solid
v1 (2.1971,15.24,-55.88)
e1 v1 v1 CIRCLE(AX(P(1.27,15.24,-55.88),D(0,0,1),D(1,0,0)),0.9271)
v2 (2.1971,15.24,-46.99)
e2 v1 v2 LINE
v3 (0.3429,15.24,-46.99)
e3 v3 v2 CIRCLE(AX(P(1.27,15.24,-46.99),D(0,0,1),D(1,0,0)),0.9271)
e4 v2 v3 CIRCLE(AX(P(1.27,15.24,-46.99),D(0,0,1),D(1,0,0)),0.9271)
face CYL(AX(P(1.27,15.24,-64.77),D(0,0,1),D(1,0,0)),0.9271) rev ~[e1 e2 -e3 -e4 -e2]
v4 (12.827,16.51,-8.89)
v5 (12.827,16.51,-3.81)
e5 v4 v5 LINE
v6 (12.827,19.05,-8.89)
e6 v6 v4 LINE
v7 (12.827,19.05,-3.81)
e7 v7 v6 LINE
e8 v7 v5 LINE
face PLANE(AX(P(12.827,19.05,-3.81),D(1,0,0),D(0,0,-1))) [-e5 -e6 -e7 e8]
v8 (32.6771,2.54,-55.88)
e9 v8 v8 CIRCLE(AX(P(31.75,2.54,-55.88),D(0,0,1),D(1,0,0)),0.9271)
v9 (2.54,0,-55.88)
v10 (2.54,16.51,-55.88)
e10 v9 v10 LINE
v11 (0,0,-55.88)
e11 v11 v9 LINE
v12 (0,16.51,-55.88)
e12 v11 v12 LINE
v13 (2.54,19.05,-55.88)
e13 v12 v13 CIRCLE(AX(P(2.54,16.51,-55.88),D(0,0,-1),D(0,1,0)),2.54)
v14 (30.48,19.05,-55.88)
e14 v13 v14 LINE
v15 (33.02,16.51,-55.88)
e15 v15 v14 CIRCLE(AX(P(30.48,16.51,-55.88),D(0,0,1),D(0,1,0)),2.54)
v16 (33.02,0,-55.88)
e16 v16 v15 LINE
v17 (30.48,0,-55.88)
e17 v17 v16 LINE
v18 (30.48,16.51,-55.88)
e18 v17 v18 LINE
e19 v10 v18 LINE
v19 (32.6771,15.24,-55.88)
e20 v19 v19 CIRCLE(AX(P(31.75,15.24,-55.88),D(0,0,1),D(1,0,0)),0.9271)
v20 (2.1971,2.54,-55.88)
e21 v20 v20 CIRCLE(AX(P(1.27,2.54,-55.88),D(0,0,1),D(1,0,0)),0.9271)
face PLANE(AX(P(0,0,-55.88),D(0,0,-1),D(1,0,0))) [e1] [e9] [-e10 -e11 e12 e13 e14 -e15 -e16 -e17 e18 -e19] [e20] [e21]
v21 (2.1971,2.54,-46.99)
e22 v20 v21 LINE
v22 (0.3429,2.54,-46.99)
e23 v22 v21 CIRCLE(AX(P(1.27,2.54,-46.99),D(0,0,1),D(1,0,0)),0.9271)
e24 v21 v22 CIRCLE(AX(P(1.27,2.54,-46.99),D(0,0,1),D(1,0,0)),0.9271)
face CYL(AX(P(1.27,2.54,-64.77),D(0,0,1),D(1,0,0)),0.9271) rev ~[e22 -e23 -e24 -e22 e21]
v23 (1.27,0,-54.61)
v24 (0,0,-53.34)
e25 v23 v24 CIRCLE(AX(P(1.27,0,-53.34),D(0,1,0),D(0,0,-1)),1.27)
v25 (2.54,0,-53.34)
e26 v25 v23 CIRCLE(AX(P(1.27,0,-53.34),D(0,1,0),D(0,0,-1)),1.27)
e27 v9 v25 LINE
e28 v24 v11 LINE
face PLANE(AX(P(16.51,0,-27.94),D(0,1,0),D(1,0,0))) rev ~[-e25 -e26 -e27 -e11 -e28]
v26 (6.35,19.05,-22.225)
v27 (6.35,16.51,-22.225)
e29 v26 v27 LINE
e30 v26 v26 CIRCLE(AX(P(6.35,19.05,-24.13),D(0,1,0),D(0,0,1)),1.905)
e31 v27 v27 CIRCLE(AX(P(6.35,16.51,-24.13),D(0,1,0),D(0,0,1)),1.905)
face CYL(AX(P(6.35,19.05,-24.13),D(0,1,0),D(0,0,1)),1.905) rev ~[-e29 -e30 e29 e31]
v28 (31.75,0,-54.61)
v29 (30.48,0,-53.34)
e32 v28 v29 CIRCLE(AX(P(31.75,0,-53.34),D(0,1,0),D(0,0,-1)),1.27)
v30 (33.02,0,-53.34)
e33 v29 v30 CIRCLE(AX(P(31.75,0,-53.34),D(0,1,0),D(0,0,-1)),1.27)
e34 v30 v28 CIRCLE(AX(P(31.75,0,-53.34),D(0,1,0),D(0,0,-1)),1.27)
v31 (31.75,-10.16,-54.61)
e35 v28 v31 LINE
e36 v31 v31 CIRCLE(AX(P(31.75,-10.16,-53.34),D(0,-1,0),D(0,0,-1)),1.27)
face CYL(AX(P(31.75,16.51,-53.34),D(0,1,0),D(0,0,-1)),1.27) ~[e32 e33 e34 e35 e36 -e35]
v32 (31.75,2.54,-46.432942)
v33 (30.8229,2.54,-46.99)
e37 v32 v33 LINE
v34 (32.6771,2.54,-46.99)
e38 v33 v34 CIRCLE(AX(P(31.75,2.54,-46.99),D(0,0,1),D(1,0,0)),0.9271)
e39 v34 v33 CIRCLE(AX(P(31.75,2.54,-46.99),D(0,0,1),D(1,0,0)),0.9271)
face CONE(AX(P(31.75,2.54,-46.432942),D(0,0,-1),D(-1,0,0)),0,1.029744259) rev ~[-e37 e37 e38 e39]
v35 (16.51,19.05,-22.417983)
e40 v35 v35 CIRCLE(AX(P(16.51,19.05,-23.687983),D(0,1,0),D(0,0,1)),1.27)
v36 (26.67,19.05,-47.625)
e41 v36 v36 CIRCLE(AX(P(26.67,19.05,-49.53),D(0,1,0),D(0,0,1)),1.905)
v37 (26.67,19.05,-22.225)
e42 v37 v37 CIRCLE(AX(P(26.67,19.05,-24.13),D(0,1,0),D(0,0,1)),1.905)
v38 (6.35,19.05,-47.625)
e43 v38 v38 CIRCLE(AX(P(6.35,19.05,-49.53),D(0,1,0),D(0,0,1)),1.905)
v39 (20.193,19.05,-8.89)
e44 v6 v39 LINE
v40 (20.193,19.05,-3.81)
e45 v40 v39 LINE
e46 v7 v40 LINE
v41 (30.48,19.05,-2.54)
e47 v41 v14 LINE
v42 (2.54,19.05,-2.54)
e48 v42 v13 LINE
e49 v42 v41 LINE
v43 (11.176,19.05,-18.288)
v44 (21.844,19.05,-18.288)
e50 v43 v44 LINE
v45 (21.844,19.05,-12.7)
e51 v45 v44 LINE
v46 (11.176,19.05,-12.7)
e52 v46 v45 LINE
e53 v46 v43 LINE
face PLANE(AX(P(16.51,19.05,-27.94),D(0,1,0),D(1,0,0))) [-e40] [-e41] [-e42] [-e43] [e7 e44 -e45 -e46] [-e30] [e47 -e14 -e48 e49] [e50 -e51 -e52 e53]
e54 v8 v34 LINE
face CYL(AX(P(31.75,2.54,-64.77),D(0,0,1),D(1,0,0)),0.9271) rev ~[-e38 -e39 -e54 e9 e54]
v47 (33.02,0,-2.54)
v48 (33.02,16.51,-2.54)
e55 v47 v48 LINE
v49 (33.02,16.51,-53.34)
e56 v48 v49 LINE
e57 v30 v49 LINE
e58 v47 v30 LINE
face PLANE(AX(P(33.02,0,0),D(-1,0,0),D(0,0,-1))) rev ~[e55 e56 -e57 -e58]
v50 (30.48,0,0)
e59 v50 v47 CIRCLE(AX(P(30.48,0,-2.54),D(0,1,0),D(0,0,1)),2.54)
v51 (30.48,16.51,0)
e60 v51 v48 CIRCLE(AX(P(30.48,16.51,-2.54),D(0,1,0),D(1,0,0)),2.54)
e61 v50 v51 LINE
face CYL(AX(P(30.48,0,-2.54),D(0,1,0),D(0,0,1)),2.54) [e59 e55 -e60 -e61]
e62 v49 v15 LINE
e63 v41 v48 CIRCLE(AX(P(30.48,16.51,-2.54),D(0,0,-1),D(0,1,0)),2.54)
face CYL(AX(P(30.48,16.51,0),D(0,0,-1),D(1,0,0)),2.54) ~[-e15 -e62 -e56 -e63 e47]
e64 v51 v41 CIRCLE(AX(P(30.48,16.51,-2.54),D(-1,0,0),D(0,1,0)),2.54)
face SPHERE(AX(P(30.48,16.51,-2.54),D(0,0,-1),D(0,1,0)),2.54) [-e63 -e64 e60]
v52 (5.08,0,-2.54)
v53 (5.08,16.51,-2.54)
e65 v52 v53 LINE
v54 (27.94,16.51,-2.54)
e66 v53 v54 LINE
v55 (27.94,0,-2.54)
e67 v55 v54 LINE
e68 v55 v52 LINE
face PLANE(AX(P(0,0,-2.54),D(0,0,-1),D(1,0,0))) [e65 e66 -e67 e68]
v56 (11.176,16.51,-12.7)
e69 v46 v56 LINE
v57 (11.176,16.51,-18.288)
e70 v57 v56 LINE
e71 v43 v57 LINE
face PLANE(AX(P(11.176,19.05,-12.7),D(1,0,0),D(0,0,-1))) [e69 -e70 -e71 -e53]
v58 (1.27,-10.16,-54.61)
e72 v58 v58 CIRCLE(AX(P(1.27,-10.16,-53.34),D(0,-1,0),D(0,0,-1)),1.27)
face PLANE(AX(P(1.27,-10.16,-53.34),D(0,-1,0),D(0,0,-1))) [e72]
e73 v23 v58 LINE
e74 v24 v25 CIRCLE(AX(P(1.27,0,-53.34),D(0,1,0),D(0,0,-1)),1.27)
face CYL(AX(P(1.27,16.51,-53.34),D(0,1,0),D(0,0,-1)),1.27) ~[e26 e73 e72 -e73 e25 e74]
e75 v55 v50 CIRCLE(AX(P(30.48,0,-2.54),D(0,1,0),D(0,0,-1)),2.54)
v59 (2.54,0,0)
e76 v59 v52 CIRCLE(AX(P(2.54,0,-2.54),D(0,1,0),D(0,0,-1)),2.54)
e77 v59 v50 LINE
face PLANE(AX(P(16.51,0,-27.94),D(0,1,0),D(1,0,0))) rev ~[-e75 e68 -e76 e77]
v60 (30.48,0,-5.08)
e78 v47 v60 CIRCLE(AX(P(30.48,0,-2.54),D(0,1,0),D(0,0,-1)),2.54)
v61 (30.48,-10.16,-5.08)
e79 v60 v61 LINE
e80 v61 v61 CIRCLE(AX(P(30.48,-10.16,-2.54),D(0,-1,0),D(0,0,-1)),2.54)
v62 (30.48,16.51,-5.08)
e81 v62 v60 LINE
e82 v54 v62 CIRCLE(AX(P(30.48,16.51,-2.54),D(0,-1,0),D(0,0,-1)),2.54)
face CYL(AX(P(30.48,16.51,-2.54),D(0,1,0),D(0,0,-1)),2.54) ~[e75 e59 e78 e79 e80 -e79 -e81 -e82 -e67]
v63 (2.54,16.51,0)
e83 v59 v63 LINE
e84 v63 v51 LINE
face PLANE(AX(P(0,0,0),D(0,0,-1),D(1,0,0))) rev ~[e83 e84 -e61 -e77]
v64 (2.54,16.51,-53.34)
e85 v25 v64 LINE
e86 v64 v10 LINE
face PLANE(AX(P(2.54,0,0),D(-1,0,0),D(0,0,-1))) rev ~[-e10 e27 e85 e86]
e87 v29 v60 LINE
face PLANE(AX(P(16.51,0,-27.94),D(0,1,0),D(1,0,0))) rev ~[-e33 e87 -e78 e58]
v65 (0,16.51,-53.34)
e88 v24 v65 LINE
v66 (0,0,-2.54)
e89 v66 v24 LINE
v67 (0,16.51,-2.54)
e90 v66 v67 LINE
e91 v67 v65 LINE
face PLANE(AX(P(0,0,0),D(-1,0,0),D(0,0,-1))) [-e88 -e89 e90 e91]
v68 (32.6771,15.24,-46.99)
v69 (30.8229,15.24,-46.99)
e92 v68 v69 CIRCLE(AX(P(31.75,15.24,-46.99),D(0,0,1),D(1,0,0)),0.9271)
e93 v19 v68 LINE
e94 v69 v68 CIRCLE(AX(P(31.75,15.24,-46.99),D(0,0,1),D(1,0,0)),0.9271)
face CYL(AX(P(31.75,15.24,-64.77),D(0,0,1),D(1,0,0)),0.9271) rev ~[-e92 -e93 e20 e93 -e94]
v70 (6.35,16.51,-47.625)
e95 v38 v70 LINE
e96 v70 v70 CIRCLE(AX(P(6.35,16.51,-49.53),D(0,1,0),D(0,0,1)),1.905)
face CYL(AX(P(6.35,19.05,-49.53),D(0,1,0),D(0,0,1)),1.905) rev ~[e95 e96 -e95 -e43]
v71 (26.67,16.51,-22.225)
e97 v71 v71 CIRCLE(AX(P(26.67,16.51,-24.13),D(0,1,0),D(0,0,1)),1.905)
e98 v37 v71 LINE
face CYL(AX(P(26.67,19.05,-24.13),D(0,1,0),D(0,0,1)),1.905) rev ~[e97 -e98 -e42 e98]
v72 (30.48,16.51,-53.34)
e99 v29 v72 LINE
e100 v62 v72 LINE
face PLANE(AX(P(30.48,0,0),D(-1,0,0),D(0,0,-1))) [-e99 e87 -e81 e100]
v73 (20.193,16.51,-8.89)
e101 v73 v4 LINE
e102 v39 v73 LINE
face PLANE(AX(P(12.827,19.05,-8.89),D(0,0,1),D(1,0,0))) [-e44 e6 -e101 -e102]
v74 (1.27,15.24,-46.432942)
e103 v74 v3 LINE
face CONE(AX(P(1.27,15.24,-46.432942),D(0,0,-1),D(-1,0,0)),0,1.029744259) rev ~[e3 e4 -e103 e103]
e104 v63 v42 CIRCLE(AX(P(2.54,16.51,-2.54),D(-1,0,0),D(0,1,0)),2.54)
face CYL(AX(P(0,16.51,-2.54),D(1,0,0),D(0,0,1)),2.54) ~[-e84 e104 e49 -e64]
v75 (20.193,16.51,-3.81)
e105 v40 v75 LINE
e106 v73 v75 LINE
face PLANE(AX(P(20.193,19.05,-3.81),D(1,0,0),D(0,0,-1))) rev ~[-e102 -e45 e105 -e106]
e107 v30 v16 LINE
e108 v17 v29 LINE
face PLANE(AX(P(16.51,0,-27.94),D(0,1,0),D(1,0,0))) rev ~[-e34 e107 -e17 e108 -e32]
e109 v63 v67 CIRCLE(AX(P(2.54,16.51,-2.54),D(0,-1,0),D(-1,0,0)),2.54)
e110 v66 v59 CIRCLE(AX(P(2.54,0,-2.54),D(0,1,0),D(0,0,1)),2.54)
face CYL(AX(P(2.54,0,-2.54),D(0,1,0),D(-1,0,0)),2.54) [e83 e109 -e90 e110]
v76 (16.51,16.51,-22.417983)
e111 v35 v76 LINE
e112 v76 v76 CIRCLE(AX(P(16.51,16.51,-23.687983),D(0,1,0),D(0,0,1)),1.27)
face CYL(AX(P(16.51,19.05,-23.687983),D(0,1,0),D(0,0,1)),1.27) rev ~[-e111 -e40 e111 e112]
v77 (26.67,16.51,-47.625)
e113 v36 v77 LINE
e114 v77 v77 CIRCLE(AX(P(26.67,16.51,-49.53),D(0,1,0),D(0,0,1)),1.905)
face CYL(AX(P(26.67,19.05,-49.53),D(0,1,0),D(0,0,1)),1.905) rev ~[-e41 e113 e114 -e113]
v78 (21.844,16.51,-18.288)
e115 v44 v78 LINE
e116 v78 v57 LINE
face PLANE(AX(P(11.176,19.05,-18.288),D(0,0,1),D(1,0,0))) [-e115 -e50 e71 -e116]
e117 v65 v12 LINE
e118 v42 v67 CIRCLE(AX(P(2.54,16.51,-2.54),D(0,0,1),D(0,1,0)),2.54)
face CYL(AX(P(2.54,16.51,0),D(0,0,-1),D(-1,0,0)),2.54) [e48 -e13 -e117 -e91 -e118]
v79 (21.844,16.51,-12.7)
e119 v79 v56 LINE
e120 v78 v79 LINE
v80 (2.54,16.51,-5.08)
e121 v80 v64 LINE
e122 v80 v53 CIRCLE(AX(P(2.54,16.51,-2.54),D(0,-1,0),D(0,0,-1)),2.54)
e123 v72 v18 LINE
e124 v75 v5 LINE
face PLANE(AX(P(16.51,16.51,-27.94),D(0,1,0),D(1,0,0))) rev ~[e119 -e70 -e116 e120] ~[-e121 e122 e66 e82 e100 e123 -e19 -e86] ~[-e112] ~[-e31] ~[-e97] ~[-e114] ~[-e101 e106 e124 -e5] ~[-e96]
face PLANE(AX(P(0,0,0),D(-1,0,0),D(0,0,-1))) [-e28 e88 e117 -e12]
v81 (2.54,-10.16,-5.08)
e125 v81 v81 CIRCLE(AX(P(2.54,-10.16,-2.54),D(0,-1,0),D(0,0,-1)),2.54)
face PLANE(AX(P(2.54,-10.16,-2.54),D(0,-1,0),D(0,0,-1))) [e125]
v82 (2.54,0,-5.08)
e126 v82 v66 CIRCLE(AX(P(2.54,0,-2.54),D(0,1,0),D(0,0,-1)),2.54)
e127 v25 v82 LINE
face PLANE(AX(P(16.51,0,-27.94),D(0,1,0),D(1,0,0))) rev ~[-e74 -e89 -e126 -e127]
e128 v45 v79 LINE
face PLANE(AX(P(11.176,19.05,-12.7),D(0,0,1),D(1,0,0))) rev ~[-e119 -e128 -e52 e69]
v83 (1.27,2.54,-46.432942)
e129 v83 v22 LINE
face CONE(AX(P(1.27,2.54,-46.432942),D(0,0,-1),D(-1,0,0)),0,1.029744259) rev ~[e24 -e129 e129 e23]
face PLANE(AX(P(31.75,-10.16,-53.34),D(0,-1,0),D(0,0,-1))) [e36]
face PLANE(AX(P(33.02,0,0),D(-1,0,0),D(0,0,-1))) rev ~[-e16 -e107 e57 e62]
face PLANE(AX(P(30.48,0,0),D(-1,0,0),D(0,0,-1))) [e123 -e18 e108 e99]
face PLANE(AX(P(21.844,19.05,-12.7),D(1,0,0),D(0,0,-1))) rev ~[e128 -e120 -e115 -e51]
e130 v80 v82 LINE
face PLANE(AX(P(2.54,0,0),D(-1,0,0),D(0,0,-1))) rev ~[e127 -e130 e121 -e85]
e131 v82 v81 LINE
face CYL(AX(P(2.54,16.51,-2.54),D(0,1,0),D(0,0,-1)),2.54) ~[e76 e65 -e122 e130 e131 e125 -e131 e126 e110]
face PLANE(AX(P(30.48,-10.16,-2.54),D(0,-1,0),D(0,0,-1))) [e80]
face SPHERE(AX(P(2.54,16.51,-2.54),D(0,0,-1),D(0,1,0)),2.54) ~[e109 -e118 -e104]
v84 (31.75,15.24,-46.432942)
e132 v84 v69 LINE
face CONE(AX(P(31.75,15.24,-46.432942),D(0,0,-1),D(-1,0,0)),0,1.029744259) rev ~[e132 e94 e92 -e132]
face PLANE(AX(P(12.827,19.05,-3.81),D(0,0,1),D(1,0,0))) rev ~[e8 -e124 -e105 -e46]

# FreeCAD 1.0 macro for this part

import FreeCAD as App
import Part
import Sketcher
Q = App.Units.Quantity


def edges_at(feature, points):
    """Names of the edges that pass closest to the given points."""
    edges = feature.Shape.Edges
    near = lambda p: min(range(len(edges)), key=lambda i: edges[i].distToShape(Part.Vertex(*p))[0])
    return sorted({f"Edge{near(p) + 1}" for p in points})


def faces_at(feature, points):
    """Names of the faces that lie closest to the given points."""
    faces = feature.Shape.Faces
    near = lambda p: min(range(len(faces)), key=lambda i: faces[i].distToShape(Part.Vertex(*p))[0])
    return sorted({f"Face{near(p) + 1}" for p in points})

doc = App.newDocument("Part")
body = doc.addObject("PartDesign::Body", "Body")

# Sketch on XZ plane
sketch1 = body.newObject("Sketcher::SketchObject", "Sketch")
sketch1.AttachmentSupport = (doc.getObject("XZ_Plane"), [""])
sketch1.MapMode = "FlatFace"
sketch1.addGeometry([
    Part.LineSegment(App.Vector(0, -55.88, 0), App.Vector(0, 0, 0)),
    Part.LineSegment(App.Vector(0, 0, 0), App.Vector(33.02, 0, 0)),
    Part.LineSegment(App.Vector(33.02, 0, 0), App.Vector(33.02, -55.88, 0)),
    Part.LineSegment(App.Vector(33.02, -55.88, 0), App.Vector(0, -55.88, 0)),
], False)
sketch1.addConstraint([
    Sketcher.Constraint("Coincident", 0, 2, 1, 1),
    Sketcher.Constraint("Coincident", 1, 2, 2, 1),
    Sketcher.Constraint("Coincident", 2, 2, 3, 1),
    Sketcher.Constraint("Coincident", 3, 2, 0, 1),
    Sketcher.Constraint("Vertical", 0),
    Sketcher.Constraint("Horizontal", 1),
    Sketcher.Constraint("Vertical", 2),
    Sketcher.Constraint("Horizontal", 3),
    Sketcher.Constraint("Coincident", 0, 2, -1, 1),
    Sketcher.Constraint("DistanceX", 1, 1, 1, 2, Q("1.3 in")),
    Sketcher.Constraint("DistanceY", 0, 1, 0, 2, Q("2.2 in")),
])
pad1 = body.newObject("PartDesign::Pad", "Pad")
pad1.Profile = sketch1
pad1.Length = Q("0.75 in")
pad1.Reversed = True
doc.recompute()

thickness = body.newObject("PartDesign::Thickness", "Thickness")
thickness.Base = (pad1, faces_at(pad1, [(16.51, 0, -27.94), (16.51, 9.525, -55.88)]))
thickness.Value = Q("0.1 in")
thickness.Reversed = True
thickness.Join = "Intersection"
doc.recompute()

fillet = body.newObject("PartDesign::Fillet", "Fillet")
fillet.Base = (thickness, edges_at(thickness, [
    (33.02, 19.05, -27.94),
    (0, 19.05, -27.94),
    (16.51, 19.05, 0),
    (33.02, 9.525, 0),
    (0, 9.525, 0),
]))
fillet.Radius = Q("0.1 in")

# Sketch on XZ plane
sketch2 = body.newObject("Sketcher::SketchObject", "Sketch001")
sketch2.AttachmentSupport = (doc.getObject("XZ_Plane"), [""])
sketch2.MapMode = "FlatFace"
sketch2.AttachmentOffset = App.Placement(App.Vector(0, 0, -0.75 * 25.4), App.Rotation())
sketch2.addGeometry([
    Part.Circle(App.Vector(26.67, -49.53, 0), App.Vector(0, 0, 1), 1.905),
    Part.Circle(App.Vector(26.67, -24.13, 0), App.Vector(0, 0, 1), 1.905),
    Part.Circle(App.Vector(6.35, -24.13, 0), App.Vector(0, 0, 1), 1.905),
    Part.Circle(App.Vector(6.35, -49.53, 0), App.Vector(0, 0, 1), 1.905),
], False)
sketch2.addConstraint([
    Sketcher.Constraint("Equal", 0, 1),
    Sketcher.Constraint("Equal", 1, 2),
    Sketcher.Constraint("Equal", 2, 3),
    Sketcher.Constraint("Horizontal", 1, 3, 2, 3),
    Sketcher.Constraint("Horizontal", 0, 3, 3, 3),
    Sketcher.Constraint("Vertical", 0, 3, 1, 3),
    Sketcher.Constraint("Vertical", 2, 3, 3, 3),
    Sketcher.Constraint("Diameter", 0, Q("0.15 in")),
    Sketcher.Constraint("DistanceY", 0, 3, 1, 3, Q("1 in")),
    Sketcher.Constraint("DistanceX", 2, 3, 1, 3, Q("0.8 in")),
    Sketcher.Constraint("DistanceX", -1, 1, 0, 3, Q("1.05 in")),
    Sketcher.Constraint("DistanceY", 0, 3, -1, 1, Q("1.95 in")),
])
pocket1 = body.newObject("PartDesign::Pocket", "Pocket")
pocket1.Profile = sketch2
pocket1.Length = Q("0.1 in")
pocket1.Reversed = True

# Sketch on XZ plane
sketch3 = body.newObject("Sketcher::SketchObject", "Sketch002")
sketch3.AttachmentSupport = (doc.getObject("XZ_Plane"), [""])
sketch3.MapMode = "FlatFace"
sketch3.AttachmentOffset = App.Placement(App.Vector(0, 0, -0.75 * 25.4), App.Rotation())
sketch3.addGeometry([
    Part.LineSegment(App.Vector(11.176, -18.288, 0), App.Vector(11.176, -12.7, 0)),
    Part.LineSegment(App.Vector(11.176, -12.7, 0), App.Vector(21.844, -12.7, 0)),
    Part.LineSegment(App.Vector(21.844, -12.7, 0), App.Vector(21.844, -18.288, 0)),
    Part.LineSegment(App.Vector(21.844, -18.288, 0), App.Vector(11.176, -18.288, 0)),
], False)
sketch3.addConstraint([
    Sketcher.Constraint("Coincident", 0, 2, 1, 1),
    Sketcher.Constraint("Coincident", 1, 2, 2, 1),
    Sketcher.Constraint("Coincident", 2, 2, 3, 1),
    Sketcher.Constraint("Coincident", 3, 2, 0, 1),
    Sketcher.Constraint("Vertical", 0),
    Sketcher.Constraint("Horizontal", 1),
    Sketcher.Constraint("Vertical", 2),
    Sketcher.Constraint("Horizontal", 3),
    Sketcher.Constraint("DistanceX", 1, 1, 1, 2, Q("0.42 in")),
    Sketcher.Constraint("DistanceY", 0, 1, 0, 2, Q("0.22 in")),
    Sketcher.Constraint("DistanceY", 0, 2, -1, 1, Q("0.5 in")),
    Sketcher.Constraint("DistanceX", -1, 1, 0, 2, Q("0.44 in")),
])
pocket2 = body.newObject("PartDesign::Pocket", "Pocket001")
pocket2.Profile = sketch3
pocket2.Type = "UpToFirst"
pocket2.Reversed = True

# Sketch on XZ plane
sketch4 = body.newObject("Sketcher::SketchObject", "Sketch003")
sketch4.AttachmentSupport = (doc.getObject("XZ_Plane"), [""])
sketch4.MapMode = "FlatFace"
sketch4.AttachmentOffset = App.Placement(App.Vector(0, 0, -0.75 * 25.4), App.Rotation())
sketch4.addGeometry(Part.Circle(App.Vector(16.51, -23.687983, 0), App.Vector(0, 0, 1), 1.27), False)
sketch4.addConstraint([
    Sketcher.Constraint("Diameter", 0, Q("0.1 in")),
    Sketcher.Constraint("DistanceX", -1, 1, 0, 3, Q("0.65 in")),
    Sketcher.Constraint("DistanceY", 0, 3, -1, 1, 23.687983),
])
pocket3 = body.newObject("PartDesign::Pocket", "Pocket002")
pocket3.Profile = sketch4
pocket3.Type = "UpToFirst"
pocket3.Reversed = True

# Sketch on XZ plane
sketch5 = body.newObject("Sketcher::SketchObject", "Sketch004")
sketch5.AttachmentSupport = (doc.getObject("XZ_Plane"), [""])
sketch5.MapMode = "FlatFace"
sketch5.AttachmentOffset = App.Placement(App.Vector(0, 0, -0.75 * 25.4), App.Rotation())
sketch5.addGeometry([
    Part.LineSegment(App.Vector(12.827, -8.89, 0), App.Vector(12.827, -3.81, 0)),
    Part.LineSegment(App.Vector(12.827, -3.81, 0), App.Vector(20.193, -3.81, 0)),
    Part.LineSegment(App.Vector(20.193, -3.81, 0), App.Vector(20.193, -8.89, 0)),
    Part.LineSegment(App.Vector(20.193, -8.89, 0), App.Vector(12.827, -8.89, 0)),
], False)
sketch5.addConstraint([
    Sketcher.Constraint("Coincident", 0, 2, 1, 1),
    Sketcher.Constraint("Coincident", 1, 2, 2, 1),
    Sketcher.Constraint("Coincident", 2, 2, 3, 1),
    Sketcher.Constraint("Coincident", 3, 2, 0, 1),
    Sketcher.Constraint("Vertical", 0),
    Sketcher.Constraint("Horizontal", 1),
    Sketcher.Constraint("Vertical", 2),
    Sketcher.Constraint("Horizontal", 3),
    Sketcher.Constraint("DistanceY", 0, 1, 0, 2, Q("0.2 in")),
    Sketcher.Constraint("DistanceX", 1, 1, 1, 2, Q("0.29 in")),
    Sketcher.Constraint("DistanceY", 0, 2, -1, 1, Q("0.15 in")),
    Sketcher.Constraint("DistanceX", -1, 1, 0, 2, Q("0.505 in")),
])
pocket4 = body.newObject("PartDesign::Pocket", "Pocket003")
pocket4.Profile = sketch5
pocket4.Type = "UpToFirst"
pocket4.Reversed = True

# Sketch on XZ plane
sketch6 = body.newObject("Sketcher::SketchObject", "Sketch005")
sketch6.AttachmentSupport = (doc.getObject("XZ_Plane"), [""])
sketch6.MapMode = "FlatFace"
sketch6.AttachmentOffset = App.Placement(App.Vector(0, 0, -0.65 * 25.4), App.Rotation())
sketch6.addGeometry([
    Part.Circle(App.Vector(30.48, -2.54, 0), App.Vector(0, 0, 1), 2.54),
    Part.Circle(App.Vector(2.54, -2.54, 0), App.Vector(0, 0, 1), 2.54),
    Part.Circle(App.Vector(31.75, -53.34, 0), App.Vector(0, 0, 1), 1.27),
    Part.Circle(App.Vector(1.27, -53.34, 0), App.Vector(0, 0, 1), 1.27),
], False)
sketch6.addConstraint([
    Sketcher.Constraint("Equal", 0, 1),
    Sketcher.Constraint("Equal", 2, 3),
    Sketcher.Constraint("Horizontal", 0, 3, 1, 3),
    Sketcher.Constraint("Horizontal", 2, 3, 3, 3),
    Sketcher.Constraint("Diameter", 0, Q("0.2 in")),
    Sketcher.Constraint("Diameter", 2, Q("0.1 in")),
    Sketcher.Constraint("DistanceY", 2, 3, 0, 3, Q("2 in")),
    Sketcher.Constraint("DistanceX", -1, 1, 0, 3, Q("1.2 in")),
    Sketcher.Constraint("DistanceY", 0, 3, -1, 1, Q("0.1 in")),
    Sketcher.Constraint("DistanceX", -1, 1, 1, 3, Q("0.1 in")),
    Sketcher.Constraint("DistanceX", 3, 3, 2, 3, Q("1.2 in")),
    Sketcher.Constraint("DistanceX", -1, 1, 2, 3, Q("1.25 in")),
])
pad2 = body.newObject("PartDesign::Pad", "Pad001")
pad2.Profile = sketch6
pad2.Length = Q("1.05 in")

# Sketch on XY plane
sketch7 = body.newObject("Sketcher::SketchObject", "Sketch006")
sketch7.AttachmentSupport = (doc.getObject("XY_Plane"), [""])
sketch7.MapMode = "FlatFace"
sketch7.AttachmentOffset = App.Placement(App.Vector(0, 0, -2.2 * 25.4), App.Rotation())
sketch7.addGeometry([
    Part.Circle(App.Vector(31.75, 15.24, 0), App.Vector(0, 0, 1), 0.9271),
    Part.Circle(App.Vector(31.75, 2.54, 0), App.Vector(0, 0, 1), 0.9271),
    Part.Circle(App.Vector(1.27, 2.54, 0), App.Vector(0, 0, 1), 0.9271),
    Part.Circle(App.Vector(1.27, 15.24, 0), App.Vector(0, 0, 1), 0.9271),
], False)
sketch7.addConstraint([
    Sketcher.Constraint("Equal", 0, 1),
    Sketcher.Constraint("Equal", 1, 2),
    Sketcher.Constraint("Equal", 2, 3),
    Sketcher.Constraint("Horizontal", 1, 3, 2, 3),
    Sketcher.Constraint("Horizontal", 0, 3, 3, 3),
    Sketcher.Constraint("Vertical", 0, 3, 1, 3),
    Sketcher.Constraint("Vertical", 2, 3, 3, 3),
    Sketcher.Constraint("Diameter", 0, Q("0.073 in")),
    Sketcher.Constraint("DistanceY", -1, 1, 0, 3, Q("0.6 in")),
    Sketcher.Constraint("DistanceY", -1, 1, 1, 3, Q("0.1 in")),
    Sketcher.Constraint("DistanceX", 2, 3, 1, 3, Q("1.2 in")),
    Sketcher.Constraint("DistanceX", -1, 1, 0, 3, Q("1.25 in")),
])
doc.recompute()
hole = body.newObject("PartDesign::Hole", "Hole")
hole.Profile = sketch7
hole.ThreadType = "None"
hole.Diameter = Q("0.073 in")
hole.DepthType = "Dimension"
hole.Depth = Q("0.35 in")
hole.DrillPoint = "Angled"
hole.DrillPointAngle = 118
hole.Reversed = True

doc.recompute()
